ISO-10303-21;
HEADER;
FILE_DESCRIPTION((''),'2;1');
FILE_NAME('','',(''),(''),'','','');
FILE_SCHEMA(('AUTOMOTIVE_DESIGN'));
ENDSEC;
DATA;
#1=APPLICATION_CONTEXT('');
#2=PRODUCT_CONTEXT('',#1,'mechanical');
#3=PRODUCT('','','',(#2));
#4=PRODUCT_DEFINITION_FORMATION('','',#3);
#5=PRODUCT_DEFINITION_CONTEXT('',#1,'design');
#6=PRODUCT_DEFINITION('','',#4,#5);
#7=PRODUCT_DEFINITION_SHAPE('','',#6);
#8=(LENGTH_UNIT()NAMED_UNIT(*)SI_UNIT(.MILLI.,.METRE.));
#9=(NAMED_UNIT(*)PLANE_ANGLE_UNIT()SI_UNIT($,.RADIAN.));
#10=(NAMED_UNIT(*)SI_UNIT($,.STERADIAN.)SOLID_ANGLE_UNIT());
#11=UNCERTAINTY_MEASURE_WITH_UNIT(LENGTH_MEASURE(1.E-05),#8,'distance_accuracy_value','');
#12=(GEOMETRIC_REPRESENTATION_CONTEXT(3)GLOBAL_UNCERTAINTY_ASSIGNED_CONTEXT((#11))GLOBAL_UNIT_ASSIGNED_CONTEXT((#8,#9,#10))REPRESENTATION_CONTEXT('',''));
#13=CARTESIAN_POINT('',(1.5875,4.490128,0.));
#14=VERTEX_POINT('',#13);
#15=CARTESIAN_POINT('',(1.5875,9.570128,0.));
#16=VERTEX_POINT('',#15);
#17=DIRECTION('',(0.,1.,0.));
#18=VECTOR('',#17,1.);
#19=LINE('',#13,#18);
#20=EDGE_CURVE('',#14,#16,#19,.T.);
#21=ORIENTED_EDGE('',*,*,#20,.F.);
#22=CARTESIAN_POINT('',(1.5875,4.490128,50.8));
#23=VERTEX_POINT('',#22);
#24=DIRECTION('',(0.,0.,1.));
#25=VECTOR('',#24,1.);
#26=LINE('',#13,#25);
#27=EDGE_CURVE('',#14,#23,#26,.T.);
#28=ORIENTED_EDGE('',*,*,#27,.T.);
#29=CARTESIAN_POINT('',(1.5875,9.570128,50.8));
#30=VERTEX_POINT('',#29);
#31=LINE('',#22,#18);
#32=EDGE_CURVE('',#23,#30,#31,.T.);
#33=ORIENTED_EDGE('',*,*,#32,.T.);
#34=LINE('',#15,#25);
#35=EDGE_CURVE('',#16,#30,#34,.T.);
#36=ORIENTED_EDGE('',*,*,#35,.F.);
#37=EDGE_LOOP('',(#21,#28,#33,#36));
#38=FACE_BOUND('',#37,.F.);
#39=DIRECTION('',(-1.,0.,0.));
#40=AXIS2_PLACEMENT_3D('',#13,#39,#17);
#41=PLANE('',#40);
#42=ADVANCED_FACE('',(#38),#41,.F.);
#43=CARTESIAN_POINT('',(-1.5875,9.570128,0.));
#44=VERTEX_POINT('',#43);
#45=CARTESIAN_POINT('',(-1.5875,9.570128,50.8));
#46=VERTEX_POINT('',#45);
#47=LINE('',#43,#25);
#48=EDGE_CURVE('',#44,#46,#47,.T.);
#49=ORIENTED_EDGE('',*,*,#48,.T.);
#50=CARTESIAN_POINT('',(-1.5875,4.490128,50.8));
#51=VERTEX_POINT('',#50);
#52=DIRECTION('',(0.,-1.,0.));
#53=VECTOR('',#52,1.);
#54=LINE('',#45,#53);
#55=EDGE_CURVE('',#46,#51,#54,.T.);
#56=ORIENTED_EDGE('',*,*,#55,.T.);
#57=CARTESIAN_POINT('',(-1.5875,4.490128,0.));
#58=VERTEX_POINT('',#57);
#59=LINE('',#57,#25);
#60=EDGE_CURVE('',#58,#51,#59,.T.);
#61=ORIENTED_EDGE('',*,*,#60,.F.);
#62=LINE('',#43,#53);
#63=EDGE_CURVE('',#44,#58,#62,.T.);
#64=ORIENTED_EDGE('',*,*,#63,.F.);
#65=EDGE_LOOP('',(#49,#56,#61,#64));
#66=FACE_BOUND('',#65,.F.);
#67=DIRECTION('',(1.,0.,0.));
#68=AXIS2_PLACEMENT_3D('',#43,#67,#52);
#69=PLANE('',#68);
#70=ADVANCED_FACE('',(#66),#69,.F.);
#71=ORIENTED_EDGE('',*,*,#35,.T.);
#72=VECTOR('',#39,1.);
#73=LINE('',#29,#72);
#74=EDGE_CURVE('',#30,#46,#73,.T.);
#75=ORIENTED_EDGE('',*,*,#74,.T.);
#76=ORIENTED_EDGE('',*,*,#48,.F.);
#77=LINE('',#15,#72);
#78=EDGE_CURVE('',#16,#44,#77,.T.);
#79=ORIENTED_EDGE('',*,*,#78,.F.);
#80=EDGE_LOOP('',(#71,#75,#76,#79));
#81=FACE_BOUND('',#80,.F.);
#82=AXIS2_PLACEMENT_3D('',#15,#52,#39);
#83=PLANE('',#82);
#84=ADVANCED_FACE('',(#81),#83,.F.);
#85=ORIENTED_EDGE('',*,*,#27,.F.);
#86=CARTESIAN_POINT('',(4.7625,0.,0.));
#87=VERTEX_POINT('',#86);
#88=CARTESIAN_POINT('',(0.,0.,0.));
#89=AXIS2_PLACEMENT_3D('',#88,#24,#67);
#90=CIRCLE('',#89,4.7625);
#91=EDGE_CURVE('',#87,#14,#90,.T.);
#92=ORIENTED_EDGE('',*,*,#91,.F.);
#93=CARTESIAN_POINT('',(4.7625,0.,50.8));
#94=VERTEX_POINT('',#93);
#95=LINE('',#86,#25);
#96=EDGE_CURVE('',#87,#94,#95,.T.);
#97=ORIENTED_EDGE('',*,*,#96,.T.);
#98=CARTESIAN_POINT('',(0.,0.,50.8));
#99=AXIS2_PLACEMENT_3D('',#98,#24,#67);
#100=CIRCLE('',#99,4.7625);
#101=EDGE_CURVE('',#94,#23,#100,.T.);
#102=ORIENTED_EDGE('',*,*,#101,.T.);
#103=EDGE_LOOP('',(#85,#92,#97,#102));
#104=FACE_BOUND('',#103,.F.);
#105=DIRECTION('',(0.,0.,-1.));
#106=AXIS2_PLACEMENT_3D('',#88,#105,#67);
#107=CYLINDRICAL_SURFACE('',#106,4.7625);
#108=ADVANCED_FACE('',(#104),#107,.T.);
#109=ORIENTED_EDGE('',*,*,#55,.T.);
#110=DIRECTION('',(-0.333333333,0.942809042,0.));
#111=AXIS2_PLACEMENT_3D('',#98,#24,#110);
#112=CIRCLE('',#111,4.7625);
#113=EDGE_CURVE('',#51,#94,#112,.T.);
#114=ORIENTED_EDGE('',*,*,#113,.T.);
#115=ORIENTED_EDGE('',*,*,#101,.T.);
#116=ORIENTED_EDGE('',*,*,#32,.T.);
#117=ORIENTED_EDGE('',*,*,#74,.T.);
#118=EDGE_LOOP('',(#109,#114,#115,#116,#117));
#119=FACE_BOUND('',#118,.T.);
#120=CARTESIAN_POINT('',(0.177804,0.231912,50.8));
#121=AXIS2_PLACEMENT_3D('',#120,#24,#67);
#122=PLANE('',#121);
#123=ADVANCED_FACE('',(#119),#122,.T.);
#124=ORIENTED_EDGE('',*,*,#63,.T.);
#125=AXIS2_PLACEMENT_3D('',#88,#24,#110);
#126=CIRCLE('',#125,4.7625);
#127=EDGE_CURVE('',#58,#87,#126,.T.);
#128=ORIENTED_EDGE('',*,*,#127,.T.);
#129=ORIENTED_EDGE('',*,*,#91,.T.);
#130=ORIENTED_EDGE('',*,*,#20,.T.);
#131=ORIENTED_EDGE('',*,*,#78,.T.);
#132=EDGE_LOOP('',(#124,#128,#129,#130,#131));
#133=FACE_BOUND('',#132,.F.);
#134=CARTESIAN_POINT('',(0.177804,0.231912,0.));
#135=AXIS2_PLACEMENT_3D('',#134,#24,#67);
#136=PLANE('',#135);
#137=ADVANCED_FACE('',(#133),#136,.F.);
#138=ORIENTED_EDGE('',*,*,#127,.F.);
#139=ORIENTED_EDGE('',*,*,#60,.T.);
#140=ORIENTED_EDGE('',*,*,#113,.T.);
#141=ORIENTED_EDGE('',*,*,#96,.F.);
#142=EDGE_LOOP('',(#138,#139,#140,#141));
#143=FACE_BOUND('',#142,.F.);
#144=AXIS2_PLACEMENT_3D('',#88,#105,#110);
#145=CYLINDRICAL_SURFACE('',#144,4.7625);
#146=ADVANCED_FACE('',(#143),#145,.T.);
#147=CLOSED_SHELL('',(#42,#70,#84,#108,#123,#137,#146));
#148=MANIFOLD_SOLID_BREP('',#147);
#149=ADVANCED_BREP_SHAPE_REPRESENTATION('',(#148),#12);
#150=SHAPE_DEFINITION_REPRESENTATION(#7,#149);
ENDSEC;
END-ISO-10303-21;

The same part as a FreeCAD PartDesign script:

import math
import FreeCAD as App
import Part
import Sketcher
Q = App.Units.Quantity

doc = App.newDocument("Part")
body = doc.addObject("PartDesign::Body", "Body")

# Sketch on XY plane
sketch1 = body.newObject("Sketcher::SketchObject", "Sketch")
sketch1.AttachmentSupport = (doc.getObject("XY_Plane"), [""])
sketch1.MapMode = "FlatFace"
sketch1.addGeometry([
    Part.ArcOfCircle(Part.Circle(App.Vector(0, 0, 0), App.Vector(0, 0, 1), 4.7625), math.radians(109.471221), math.radians(360)),  # 0
    Part.ArcOfCircle(Part.Circle(App.Vector(0, 0, 0), App.Vector(0, 0, 1), 4.7625), math.radians(0), math.radians(70.528779)),  # 1
    Part.LineSegment(App.Vector(1.5875, 4.490128, 0), App.Vector(1.5875, 9.570128, 0)),  # 2
    Part.LineSegment(App.Vector(1.5875, 9.570128, 0), App.Vector(-1.5875, 9.570128, 0)),  # 3
    Part.LineSegment(App.Vector(-1.5875, 9.570128, 0), App.Vector(-1.5875, 4.490128, 0)),  # 4
], False)
sketch1.addConstraint([
    Sketcher.Constraint("Tangent", 0, 2, 1, 1),
    Sketcher.Constraint("Coincident", 1, 2, 2, 1),
    Sketcher.Constraint("Coincident", 2, 2, 3, 1),
    Sketcher.Constraint("Coincident", 3, 2, 4, 1),
    Sketcher.Constraint("Coincident", 4, 2, 0, 1),
    Sketcher.Constraint("Vertical", 2),
    Sketcher.Constraint("Horizontal", 3),
    Sketcher.Constraint("Vertical", 4),
    Sketcher.Constraint("Coincident", 0, 3, -1, 1),
    Sketcher.Constraint("Equal", 0, 1),
    Sketcher.Constraint("PointOnObject", 0, 2, -1),
    Sketcher.Constraint("Horizontal", 1, 2, 4, 2),
    Sketcher.Constraint("DistanceY", 2, 1, 2, 2, Q("0.2 in")),
    Sketcher.Constraint("Radius", 0, Q("0.1875 in")),
    Sketcher.Constraint("DistanceX", 3, 2, 3, 1, Q("0.125 in")),
])
pad1 = body.newObject("PartDesign::Pad", "Pad")
pad1.Profile = sketch1
pad1.Length = Q("2 in")

doc.recompute()
